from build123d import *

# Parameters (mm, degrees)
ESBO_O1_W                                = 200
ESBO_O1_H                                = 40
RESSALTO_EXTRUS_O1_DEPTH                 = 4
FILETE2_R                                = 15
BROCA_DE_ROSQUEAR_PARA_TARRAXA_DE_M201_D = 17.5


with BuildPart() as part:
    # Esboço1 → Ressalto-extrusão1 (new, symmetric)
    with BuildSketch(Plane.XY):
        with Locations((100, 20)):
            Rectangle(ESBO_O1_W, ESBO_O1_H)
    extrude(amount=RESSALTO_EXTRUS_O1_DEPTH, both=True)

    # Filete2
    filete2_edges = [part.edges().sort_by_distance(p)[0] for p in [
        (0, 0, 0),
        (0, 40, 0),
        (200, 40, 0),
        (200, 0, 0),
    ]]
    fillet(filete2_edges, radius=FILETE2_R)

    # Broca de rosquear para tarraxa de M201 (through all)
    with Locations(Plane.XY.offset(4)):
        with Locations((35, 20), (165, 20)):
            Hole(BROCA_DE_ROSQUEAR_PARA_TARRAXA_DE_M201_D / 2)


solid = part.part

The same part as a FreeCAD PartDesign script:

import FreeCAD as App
import Part
import Sketcher

V = App.Vector


def edges_at(feature, points):
    """Names of the edges that pass closest to the given points."""
    edges = feature.Shape.Edges
    near = lambda p: min(range(len(edges)), key=lambda i: edges[i].distToShape(Part.Vertex(*p))[0])
    return sorted({f"Edge{near(p) + 1}" for p in points})

doc = App.newDocument("Part")
body = doc.addObject("PartDesign::Body", "Body")

# Sketch on XY plane
sketch1 = doc.addObject("Sketcher::SketchObject", "Sketch")
body.addObject(sketch1)
sketch1.AttachmentSupport = (doc.XY_Plane, [""])
sketch1.MapMode = "FlatFace"
sketch1.addGeometry([
    Part.LineSegment(V(0, 40, 0), V(0, 0, 0)),
    Part.LineSegment(V(0, 0, 0), V(200, 0, 0)),
    Part.LineSegment(V(200, 0, 0), V(200, 40, 0)),
    Part.LineSegment(V(200, 40, 0), V(0, 40, 0)),
], False)
sketch1.addConstraint([
    Sketcher.Constraint("Coincident", 0, 2, 1, 1),
    Sketcher.Constraint("Coincident", 1, 2, 2, 1),
    Sketcher.Constraint("Coincident", 2, 2, 3, 1),
    Sketcher.Constraint("Coincident", 3, 2, 0, 1),
    Sketcher.Constraint("Vertical", 0),
    Sketcher.Constraint("Horizontal", 1),
    Sketcher.Constraint("Vertical", 2),
    Sketcher.Constraint("Horizontal", 3),
    Sketcher.Constraint("Coincident", 0, 2, -1, 1),
    Sketcher.Constraint("DistanceX", 1, 1, 1, 2, 200.0),
    Sketcher.Constraint("DistanceY", 0, 2, 0, 1, 40.0),
])
pad1 = doc.addObject("PartDesign::Pad", "Pad")
body.addObject(pad1)
pad1.Profile = sketch1
pad1.Length = 8
pad1.Midplane = True
doc.recompute()

fillet = doc.addObject("PartDesign::Fillet", "Fillet")
body.addObject(fillet)
fillet.Base = (pad1, edges_at(pad1, [
    (0, 0, 0),
    (0, 40, 0),
    (200, 40, 0),
    (200, 0, 0),
]))
fillet.Radius = 15

# Sketch on XY plane
sketch2 = doc.addObject("Sketcher::SketchObject", "Sketch001")
body.addObject(sketch2)
sketch2.AttachmentSupport = (doc.XY_Plane, [""])
sketch2.MapMode = "FlatFace"
sketch2.AttachmentOffset = App.Placement(V(0, 0, 4), App.Rotation())
sketch2.addGeometry([
    Part.Circle(V(35, 20, 0), V(0, 0, 1), 9),
    Part.Circle(V(165, 20, 0), V(0, 0, 1), 9),
], False)
sketch2.addConstraint([
    Sketcher.Constraint("Equal", 0, 1),
    Sketcher.Constraint("Horizontal", 0, 3, 1, 3),
    Sketcher.Constraint("Diameter", 0, 17.5),
    Sketcher.Constraint("DistanceX", -1, 1, 0, 3, 35.0),
    Sketcher.Constraint("DistanceY", -1, 1, 0, 3, 20.0),
    Sketcher.Constraint("DistanceX", -1, 1, 1, 3, 165.0),
])
doc.recompute()
hole = doc.addObject("PartDesign::Hole", "Hole")
body.addObject(hole)
hole.Profile = sketch2
hole.ThreadType = "None"
hole.Diameter = 17.5
hole.DepthType = "ThroughAll"

doc.recompute()
